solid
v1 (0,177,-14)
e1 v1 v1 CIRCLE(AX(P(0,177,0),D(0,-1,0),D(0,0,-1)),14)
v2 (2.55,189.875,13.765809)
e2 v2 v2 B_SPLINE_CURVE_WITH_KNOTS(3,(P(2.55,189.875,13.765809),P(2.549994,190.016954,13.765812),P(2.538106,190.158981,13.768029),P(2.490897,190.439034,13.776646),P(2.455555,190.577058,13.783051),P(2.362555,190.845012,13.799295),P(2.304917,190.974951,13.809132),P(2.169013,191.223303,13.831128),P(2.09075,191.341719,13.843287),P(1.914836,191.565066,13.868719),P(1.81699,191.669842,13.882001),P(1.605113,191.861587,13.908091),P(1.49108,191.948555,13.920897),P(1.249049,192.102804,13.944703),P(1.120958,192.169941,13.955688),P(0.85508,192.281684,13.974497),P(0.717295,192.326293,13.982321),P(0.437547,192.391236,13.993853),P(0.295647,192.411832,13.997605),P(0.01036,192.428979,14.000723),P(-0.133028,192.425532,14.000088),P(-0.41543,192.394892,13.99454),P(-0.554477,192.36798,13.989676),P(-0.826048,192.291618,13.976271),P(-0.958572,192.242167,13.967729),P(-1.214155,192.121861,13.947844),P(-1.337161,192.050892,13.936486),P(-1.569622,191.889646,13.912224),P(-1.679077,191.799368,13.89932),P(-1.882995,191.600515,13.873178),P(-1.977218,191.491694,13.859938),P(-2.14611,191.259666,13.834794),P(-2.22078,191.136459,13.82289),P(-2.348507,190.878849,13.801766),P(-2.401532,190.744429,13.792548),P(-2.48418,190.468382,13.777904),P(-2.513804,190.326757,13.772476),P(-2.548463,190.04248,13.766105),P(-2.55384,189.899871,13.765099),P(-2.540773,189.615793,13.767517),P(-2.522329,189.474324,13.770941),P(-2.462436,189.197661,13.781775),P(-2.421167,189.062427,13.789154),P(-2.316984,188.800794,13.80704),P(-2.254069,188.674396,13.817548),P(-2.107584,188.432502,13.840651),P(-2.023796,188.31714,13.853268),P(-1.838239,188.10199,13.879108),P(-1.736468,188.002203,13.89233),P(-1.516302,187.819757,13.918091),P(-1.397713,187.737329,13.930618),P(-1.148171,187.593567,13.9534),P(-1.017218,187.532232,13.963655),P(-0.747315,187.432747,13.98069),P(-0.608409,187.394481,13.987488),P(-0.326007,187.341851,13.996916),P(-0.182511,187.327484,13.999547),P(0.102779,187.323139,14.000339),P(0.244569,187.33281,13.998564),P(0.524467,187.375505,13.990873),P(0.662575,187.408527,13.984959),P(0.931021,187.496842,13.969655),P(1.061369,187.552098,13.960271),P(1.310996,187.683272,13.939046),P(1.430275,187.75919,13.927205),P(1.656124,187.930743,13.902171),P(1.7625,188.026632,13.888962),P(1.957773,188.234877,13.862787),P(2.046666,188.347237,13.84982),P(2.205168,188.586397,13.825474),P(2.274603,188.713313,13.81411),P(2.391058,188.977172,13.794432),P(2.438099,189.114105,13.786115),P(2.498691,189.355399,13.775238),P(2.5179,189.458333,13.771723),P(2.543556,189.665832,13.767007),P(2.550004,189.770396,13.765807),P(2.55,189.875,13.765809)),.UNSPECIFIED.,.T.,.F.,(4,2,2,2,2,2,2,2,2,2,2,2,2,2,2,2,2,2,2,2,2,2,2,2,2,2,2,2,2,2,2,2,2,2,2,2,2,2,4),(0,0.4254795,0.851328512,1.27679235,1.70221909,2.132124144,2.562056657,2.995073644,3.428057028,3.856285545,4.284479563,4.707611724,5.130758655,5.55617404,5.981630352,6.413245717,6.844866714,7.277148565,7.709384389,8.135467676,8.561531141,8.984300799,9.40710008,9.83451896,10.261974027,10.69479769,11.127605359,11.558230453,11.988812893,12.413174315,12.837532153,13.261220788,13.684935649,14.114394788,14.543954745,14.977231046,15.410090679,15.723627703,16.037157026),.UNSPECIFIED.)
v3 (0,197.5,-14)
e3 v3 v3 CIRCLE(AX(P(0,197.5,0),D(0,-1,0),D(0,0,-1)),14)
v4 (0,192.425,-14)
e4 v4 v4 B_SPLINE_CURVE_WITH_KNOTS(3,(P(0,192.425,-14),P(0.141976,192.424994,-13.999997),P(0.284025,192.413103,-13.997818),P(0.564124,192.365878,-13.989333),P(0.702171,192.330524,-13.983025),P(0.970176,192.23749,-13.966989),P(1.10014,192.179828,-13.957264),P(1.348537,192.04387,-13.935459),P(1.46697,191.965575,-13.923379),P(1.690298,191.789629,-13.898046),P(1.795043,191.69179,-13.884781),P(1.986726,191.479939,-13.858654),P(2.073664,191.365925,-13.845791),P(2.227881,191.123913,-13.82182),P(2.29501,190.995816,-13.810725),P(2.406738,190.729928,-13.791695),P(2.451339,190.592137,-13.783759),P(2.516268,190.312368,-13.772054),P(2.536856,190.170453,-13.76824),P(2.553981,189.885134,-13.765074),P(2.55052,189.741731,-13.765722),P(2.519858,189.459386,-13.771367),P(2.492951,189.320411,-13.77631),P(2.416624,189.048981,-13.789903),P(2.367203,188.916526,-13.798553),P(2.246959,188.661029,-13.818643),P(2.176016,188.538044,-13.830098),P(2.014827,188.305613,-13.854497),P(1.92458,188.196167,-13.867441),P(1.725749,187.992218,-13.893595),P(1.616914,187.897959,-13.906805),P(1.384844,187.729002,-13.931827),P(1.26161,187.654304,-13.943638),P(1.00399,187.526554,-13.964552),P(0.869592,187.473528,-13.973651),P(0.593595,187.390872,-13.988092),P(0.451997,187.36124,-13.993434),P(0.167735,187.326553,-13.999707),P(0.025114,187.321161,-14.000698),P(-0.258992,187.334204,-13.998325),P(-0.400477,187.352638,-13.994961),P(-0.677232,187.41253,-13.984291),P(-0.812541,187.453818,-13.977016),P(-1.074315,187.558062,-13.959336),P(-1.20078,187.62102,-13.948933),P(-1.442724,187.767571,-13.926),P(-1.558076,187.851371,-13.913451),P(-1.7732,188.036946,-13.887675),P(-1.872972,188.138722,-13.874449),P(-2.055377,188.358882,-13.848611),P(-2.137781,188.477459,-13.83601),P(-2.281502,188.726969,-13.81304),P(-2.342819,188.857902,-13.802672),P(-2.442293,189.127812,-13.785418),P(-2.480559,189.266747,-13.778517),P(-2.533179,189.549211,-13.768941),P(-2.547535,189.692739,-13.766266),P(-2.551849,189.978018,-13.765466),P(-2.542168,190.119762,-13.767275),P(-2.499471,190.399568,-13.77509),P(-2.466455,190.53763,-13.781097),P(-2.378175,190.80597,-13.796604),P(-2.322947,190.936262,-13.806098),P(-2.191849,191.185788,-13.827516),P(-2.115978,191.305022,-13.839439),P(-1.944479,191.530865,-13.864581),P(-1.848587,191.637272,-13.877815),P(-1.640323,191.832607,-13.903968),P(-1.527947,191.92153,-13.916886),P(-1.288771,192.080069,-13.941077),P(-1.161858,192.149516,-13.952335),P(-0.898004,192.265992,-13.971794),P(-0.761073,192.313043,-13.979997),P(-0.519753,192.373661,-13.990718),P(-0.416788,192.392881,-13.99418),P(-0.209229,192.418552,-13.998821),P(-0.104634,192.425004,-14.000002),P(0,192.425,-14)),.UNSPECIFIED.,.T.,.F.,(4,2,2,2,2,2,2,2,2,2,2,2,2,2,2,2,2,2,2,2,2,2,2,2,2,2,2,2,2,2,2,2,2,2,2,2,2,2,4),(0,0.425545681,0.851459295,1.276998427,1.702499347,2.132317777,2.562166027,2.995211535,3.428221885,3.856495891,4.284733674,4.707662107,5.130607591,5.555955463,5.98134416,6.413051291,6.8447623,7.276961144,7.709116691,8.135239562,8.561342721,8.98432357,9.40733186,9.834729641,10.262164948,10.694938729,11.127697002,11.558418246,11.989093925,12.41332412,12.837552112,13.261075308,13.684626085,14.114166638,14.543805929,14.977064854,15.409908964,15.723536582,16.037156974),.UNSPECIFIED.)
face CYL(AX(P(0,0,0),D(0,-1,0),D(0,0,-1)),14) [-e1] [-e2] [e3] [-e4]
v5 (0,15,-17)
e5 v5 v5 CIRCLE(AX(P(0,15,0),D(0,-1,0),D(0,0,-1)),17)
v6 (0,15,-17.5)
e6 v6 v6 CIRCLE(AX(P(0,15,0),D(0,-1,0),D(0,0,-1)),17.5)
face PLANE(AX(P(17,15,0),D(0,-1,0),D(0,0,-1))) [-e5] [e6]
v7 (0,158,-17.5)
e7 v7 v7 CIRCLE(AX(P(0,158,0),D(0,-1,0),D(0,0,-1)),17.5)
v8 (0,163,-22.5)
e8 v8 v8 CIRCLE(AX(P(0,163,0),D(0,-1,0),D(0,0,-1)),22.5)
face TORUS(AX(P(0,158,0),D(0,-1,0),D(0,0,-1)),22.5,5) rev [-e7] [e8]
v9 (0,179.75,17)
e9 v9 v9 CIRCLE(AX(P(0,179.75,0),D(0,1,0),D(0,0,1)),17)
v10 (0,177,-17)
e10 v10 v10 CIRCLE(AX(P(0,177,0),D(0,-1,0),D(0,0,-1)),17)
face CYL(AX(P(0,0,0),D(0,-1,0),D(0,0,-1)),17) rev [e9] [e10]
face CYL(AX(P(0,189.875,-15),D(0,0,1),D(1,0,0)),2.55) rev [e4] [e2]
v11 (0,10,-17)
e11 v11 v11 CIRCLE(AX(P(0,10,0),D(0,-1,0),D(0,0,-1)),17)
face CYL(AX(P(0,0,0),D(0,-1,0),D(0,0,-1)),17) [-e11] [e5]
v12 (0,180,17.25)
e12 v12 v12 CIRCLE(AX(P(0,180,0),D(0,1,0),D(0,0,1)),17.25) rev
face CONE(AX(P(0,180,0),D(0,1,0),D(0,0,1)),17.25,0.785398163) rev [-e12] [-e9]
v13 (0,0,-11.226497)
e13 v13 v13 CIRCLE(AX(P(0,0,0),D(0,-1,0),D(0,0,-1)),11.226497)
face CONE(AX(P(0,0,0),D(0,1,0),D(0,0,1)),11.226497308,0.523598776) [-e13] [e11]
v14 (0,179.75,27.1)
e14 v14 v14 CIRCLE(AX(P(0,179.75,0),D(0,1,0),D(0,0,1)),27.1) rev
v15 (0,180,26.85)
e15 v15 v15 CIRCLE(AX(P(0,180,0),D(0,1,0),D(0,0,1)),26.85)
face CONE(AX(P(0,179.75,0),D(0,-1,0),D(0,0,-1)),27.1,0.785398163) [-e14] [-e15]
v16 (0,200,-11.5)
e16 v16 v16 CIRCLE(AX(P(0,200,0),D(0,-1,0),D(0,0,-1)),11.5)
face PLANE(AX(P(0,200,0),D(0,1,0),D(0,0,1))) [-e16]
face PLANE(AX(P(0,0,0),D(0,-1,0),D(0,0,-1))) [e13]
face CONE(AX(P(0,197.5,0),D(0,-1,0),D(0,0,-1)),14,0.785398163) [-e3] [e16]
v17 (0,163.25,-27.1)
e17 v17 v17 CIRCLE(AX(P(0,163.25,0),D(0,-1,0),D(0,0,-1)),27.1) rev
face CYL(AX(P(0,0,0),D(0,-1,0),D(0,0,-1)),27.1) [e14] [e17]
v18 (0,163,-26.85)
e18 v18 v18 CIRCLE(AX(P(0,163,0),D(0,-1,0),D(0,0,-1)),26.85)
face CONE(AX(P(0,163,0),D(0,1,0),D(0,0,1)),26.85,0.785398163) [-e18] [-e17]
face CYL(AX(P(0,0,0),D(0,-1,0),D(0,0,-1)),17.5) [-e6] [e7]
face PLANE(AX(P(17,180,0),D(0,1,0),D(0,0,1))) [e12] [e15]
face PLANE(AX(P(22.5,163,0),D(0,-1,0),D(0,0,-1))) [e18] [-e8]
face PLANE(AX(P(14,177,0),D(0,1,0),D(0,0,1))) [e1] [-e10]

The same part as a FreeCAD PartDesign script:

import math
import FreeCAD as App
import Part
import Sketcher
Q = App.Units.Quantity


def edges_at(feature, points):
    """Names of the edges that pass closest to the given points."""
    edges = feature.Shape.Edges
    near = lambda p: min(range(len(edges)), key=lambda i: edges[i].distToShape(Part.Vertex(*p))[0])
    return sorted({f"Edge{near(p) + 1}" for p in points})

doc = App.newDocument("Part")
params = doc.addObject("Spreadsheet::Sheet", "Params")
for row, (alias, value) in enumerate([
    ("sketch1_radius", "5 mm"),
    ("sketch1_width", "3 mm"),
    ("sketch1_height", "143 mm"),
    ("sketch1_height2", "17 mm"),
    ("sketch1_height3", "200 mm"),
    ("revolution_angle", "360 deg"),
    ("chamfer_size", "0.25 mm"),
    ("chamfer2_size", "0.25 mm"),
    ("chamfer3_size", "0.25 mm"),
    ("sketch2_diameter", "5.1 mm"),
    ("pocket1_length", "30 mm"),
], start=1):
    params.set(f"A{row}", alias)
    params.set(f"B{row}", "=" + value)
    params.setAlias(f"B{row}", alias)

body = doc.addObject("PartDesign::Body", "Body")

sketch1 = body.newObject("Sketcher::SketchObject", "Sketch")
sketch1.AttachmentSupport = (doc.getObject("XY_Plane"), [""])
sketch1.MapMode = "FlatFace"
sketch1.addGeometry(Part.LineSegment(App.Vector(17.5, 15, 0), App.Vector(17.5, 158, 0)), False)
sketch1.addGeometry(Part.ArcOfCircle(Part.Circle(App.Vector(22.5, 158, 0), App.Vector(0, 0, 1), 5), math.radians(90), math.radians(180)), False)
sketch1.addGeometry(Part.LineSegment(App.Vector(22.5, 163, 0), App.Vector(27.1, 163, 0)), False)
sketch1.addGeometry(Part.LineSegment(App.Vector(27.1, 163, 0), App.Vector(27.1, 180, 0)), False)
sketch1.addGeometry(Part.LineSegment(App.Vector(27.1, 180, 0), App.Vector(17, 180, 0)), False)
sketch1.addGeometry(Part.LineSegment(App.Vector(17, 180, 0), App.Vector(17, 177, 0)), False)
sketch1.addGeometry(Part.LineSegment(App.Vector(17, 177, 0), App.Vector(14, 177, 0)), False)
sketch1.addGeometry(Part.LineSegment(App.Vector(14, 177, 0), App.Vector(14, 197.5, 0)), False)
sketch1.addGeometry(Part.LineSegment(App.Vector(14, 197.5, 0), App.Vector(11.5, 200, 0)), False)
sketch1.addGeometry(Part.LineSegment(App.Vector(11.5, 200, 0), App.Vector(0, 200, 0)), False)
sketch1.addGeometry(Part.LineSegment(App.Vector(0, 200, 0), App.Vector(0, 0, 0)), False)
sketch1.addGeometry(Part.LineSegment(App.Vector(0, 0, 0), App.Vector(11.2, 0, 0)), False)
sketch1.addGeometry(Part.LineSegment(App.Vector(11.2, 0, 0), App.Vector(17, 10, 0)), False)
sketch1.addGeometry(Part.LineSegment(App.Vector(17, 10, 0), App.Vector(17, 15, 0)), False)
sketch1.addGeometry(Part.LineSegment(App.Vector(17, 15, 0), App.Vector(17.5, 15, 0)), False)
sketch1.addConstraint(Sketcher.Constraint("Tangent", 0, 2, 1, 2))
sketch1.addConstraint(Sketcher.Constraint("Tangent", 1, 1, 2, 1))
sketch1.addConstraint(Sketcher.Constraint("Coincident", 2, 2, 3, 1))
sketch1.addConstraint(Sketcher.Constraint("Coincident", 3, 2, 4, 1))
sketch1.addConstraint(Sketcher.Constraint("Coincident", 4, 2, 5, 1))
sketch1.addConstraint(Sketcher.Constraint("Coincident", 5, 2, 6, 1))
sketch1.addConstraint(Sketcher.Constraint("Coincident", 6, 2, 7, 1))
sketch1.addConstraint(Sketcher.Constraint("Coincident", 7, 2, 8, 1))
sketch1.addConstraint(Sketcher.Constraint("Coincident", 8, 2, 9, 1))
sketch1.addConstraint(Sketcher.Constraint("Coincident", 9, 2, 10, 1))
sketch1.addConstraint(Sketcher.Constraint("Coincident", 10, 2, 11, 1))
sketch1.addConstraint(Sketcher.Constraint("Coincident", 11, 2, 12, 1))
sketch1.addConstraint(Sketcher.Constraint("Coincident", 12, 2, 13, 1))
sketch1.addConstraint(Sketcher.Constraint("Coincident", 13, 2, 14, 1))
sketch1.addConstraint(Sketcher.Constraint("Coincident", 14, 2, 0, 1))
sketch1.addConstraint(Sketcher.Constraint("Vertical", 0))
sketch1.addConstraint(Sketcher.Constraint("Horizontal", 2))
sketch1.addConstraint(Sketcher.Constraint("Vertical", 3))
sketch1.addConstraint(Sketcher.Constraint("Horizontal", 4))
sketch1.addConstraint(Sketcher.Constraint("Vertical", 5))
sketch1.addConstraint(Sketcher.Constraint("Horizontal", 6))
sketch1.addConstraint(Sketcher.Constraint("Vertical", 7))
sketch1.addConstraint(Sketcher.Constraint("Horizontal", 9))
sketch1.addConstraint(Sketcher.Constraint("Vertical", 10))
sketch1.addConstraint(Sketcher.Constraint("Horizontal", 11))
sketch1.addConstraint(Sketcher.Constraint("Vertical", 13))
sketch1.addConstraint(Sketcher.Constraint("Horizontal", 14))
sketch1.addConstraint(Sketcher.Constraint("Coincident", 10, 2, -1, 1))
sketch1.addConstraint(Sketcher.Constraint("Vertical", 5, 2, 12, 2))
sketch1.addConstraint(Sketcher.Constraint("Equal", 6, 5))
sketch1.addConstraint(Sketcher.Constraint("Radius", 1, Q("5 mm")))
sketch1.addConstraint(Sketcher.Constraint("DistanceX", 6, 2, 6, 1, Q("3 mm")))
sketch1.addConstraint(Sketcher.Constraint("DistanceY", 0, 1, 0, 2, Q("143 mm")))
sketch1.addConstraint(Sketcher.Constraint("DistanceY", 3, 1, 3, 2, Q("17 mm")))
sketch1.addConstraint(Sketcher.Constraint("DistanceY", 10, 2, 10, 1, Q("200 mm")))
sketch1.addConstraint(Sketcher.Constraint("DistanceY", 13, 1, 13, 2, Q("5 mm")))
sketch1.addConstraint(Sketcher.Constraint("Angle", 8, Q("135 deg")))
sketch1.addConstraint(Sketcher.Constraint("Angle", 12, Q("60 deg")))
sketch1.addConstraint(Sketcher.Constraint("DistanceX", 2, 1, 2, 2, Q("4.6 mm")))
sketch1.addConstraint(Sketcher.Constraint("DistanceX", 4, 2, 4, 1, Q("10.1 mm")))
sketch1.addConstraint(Sketcher.Constraint("DistanceX", 9, 2, 9, 1, Q("11.5 mm")))
sketch1.addConstraint(Sketcher.Constraint("DistanceY", 7, 1, 7, 2, Q("20.5 mm")))
sketch1.addConstraint(Sketcher.Constraint("DistanceY", -1, 1, 1, 3, Q("158 mm")))
sketch1.setExpression("Constraints[30]", "Params.sketch1_radius")
sketch1.setExpression("Constraints[31]", "Params.sketch1_width")
sketch1.setExpression("Constraints[32]", "Params.sketch1_height")
sketch1.setExpression("Constraints[33]", "Params.sketch1_height2")
sketch1.setExpression("Constraints[34]", "Params.sketch1_height3")
revolution = body.newObject("PartDesign::Revolution", "Revolution")
revolution.Profile = sketch1
revolution.ReferenceAxis = (sketch1, ["V_Axis"])
revolution.setExpression("Angle", "Params.revolution_angle")
doc.recompute()

chamfer = body.newObject("PartDesign::Chamfer", "Chamfer")
chamfer.Base = (revolution, edges_at(revolution, [(0, 180, 27.1)]))
chamfer.setExpression("Size", "Params.chamfer_size")
doc.recompute()

chamfer2 = body.newObject("PartDesign::Chamfer", "Chamfer001")
chamfer2.Base = (chamfer, edges_at(chamfer, [(0, 163, 27.1)]))
chamfer2.setExpression("Size", "Params.chamfer2_size")
doc.recompute()

chamfer3 = body.newObject("PartDesign::Chamfer", "Chamfer002")
chamfer3.Base = (chamfer2, edges_at(chamfer2, [(0, 180, 17)]))
chamfer3.setExpression("Size", "Params.chamfer3_size")

sketch2 = body.newObject("Sketcher::SketchObject", "Sketch001")
sketch2.AttachmentSupport = (doc.getObject("XY_Plane"), [""])
sketch2.MapMode = "FlatFace"
sketch2.addGeometry(Part.Circle(App.Vector(0, 189.9, 0), App.Vector(0, 0, 1), 2.5), False)
sketch2.addConstraint(Sketcher.Constraint("PointOnObject", 0, 3, -2))
sketch2.addConstraint(Sketcher.Constraint("Diameter", 0, Q("5.1 mm")))
sketch2.addConstraint(Sketcher.Constraint("DistanceY", -1, 1, 0, 3, Q("189.875 mm")))
sketch2.setExpression("Constraints[1]", "Params.sketch2_diameter")
pocket1 = body.newObject("PartDesign::Pocket", "Pocket")
pocket1.Profile = sketch2
pocket1.setExpression("Length", "Params.pocket1_length")
pocket1.Midplane = True

doc.recompute()
